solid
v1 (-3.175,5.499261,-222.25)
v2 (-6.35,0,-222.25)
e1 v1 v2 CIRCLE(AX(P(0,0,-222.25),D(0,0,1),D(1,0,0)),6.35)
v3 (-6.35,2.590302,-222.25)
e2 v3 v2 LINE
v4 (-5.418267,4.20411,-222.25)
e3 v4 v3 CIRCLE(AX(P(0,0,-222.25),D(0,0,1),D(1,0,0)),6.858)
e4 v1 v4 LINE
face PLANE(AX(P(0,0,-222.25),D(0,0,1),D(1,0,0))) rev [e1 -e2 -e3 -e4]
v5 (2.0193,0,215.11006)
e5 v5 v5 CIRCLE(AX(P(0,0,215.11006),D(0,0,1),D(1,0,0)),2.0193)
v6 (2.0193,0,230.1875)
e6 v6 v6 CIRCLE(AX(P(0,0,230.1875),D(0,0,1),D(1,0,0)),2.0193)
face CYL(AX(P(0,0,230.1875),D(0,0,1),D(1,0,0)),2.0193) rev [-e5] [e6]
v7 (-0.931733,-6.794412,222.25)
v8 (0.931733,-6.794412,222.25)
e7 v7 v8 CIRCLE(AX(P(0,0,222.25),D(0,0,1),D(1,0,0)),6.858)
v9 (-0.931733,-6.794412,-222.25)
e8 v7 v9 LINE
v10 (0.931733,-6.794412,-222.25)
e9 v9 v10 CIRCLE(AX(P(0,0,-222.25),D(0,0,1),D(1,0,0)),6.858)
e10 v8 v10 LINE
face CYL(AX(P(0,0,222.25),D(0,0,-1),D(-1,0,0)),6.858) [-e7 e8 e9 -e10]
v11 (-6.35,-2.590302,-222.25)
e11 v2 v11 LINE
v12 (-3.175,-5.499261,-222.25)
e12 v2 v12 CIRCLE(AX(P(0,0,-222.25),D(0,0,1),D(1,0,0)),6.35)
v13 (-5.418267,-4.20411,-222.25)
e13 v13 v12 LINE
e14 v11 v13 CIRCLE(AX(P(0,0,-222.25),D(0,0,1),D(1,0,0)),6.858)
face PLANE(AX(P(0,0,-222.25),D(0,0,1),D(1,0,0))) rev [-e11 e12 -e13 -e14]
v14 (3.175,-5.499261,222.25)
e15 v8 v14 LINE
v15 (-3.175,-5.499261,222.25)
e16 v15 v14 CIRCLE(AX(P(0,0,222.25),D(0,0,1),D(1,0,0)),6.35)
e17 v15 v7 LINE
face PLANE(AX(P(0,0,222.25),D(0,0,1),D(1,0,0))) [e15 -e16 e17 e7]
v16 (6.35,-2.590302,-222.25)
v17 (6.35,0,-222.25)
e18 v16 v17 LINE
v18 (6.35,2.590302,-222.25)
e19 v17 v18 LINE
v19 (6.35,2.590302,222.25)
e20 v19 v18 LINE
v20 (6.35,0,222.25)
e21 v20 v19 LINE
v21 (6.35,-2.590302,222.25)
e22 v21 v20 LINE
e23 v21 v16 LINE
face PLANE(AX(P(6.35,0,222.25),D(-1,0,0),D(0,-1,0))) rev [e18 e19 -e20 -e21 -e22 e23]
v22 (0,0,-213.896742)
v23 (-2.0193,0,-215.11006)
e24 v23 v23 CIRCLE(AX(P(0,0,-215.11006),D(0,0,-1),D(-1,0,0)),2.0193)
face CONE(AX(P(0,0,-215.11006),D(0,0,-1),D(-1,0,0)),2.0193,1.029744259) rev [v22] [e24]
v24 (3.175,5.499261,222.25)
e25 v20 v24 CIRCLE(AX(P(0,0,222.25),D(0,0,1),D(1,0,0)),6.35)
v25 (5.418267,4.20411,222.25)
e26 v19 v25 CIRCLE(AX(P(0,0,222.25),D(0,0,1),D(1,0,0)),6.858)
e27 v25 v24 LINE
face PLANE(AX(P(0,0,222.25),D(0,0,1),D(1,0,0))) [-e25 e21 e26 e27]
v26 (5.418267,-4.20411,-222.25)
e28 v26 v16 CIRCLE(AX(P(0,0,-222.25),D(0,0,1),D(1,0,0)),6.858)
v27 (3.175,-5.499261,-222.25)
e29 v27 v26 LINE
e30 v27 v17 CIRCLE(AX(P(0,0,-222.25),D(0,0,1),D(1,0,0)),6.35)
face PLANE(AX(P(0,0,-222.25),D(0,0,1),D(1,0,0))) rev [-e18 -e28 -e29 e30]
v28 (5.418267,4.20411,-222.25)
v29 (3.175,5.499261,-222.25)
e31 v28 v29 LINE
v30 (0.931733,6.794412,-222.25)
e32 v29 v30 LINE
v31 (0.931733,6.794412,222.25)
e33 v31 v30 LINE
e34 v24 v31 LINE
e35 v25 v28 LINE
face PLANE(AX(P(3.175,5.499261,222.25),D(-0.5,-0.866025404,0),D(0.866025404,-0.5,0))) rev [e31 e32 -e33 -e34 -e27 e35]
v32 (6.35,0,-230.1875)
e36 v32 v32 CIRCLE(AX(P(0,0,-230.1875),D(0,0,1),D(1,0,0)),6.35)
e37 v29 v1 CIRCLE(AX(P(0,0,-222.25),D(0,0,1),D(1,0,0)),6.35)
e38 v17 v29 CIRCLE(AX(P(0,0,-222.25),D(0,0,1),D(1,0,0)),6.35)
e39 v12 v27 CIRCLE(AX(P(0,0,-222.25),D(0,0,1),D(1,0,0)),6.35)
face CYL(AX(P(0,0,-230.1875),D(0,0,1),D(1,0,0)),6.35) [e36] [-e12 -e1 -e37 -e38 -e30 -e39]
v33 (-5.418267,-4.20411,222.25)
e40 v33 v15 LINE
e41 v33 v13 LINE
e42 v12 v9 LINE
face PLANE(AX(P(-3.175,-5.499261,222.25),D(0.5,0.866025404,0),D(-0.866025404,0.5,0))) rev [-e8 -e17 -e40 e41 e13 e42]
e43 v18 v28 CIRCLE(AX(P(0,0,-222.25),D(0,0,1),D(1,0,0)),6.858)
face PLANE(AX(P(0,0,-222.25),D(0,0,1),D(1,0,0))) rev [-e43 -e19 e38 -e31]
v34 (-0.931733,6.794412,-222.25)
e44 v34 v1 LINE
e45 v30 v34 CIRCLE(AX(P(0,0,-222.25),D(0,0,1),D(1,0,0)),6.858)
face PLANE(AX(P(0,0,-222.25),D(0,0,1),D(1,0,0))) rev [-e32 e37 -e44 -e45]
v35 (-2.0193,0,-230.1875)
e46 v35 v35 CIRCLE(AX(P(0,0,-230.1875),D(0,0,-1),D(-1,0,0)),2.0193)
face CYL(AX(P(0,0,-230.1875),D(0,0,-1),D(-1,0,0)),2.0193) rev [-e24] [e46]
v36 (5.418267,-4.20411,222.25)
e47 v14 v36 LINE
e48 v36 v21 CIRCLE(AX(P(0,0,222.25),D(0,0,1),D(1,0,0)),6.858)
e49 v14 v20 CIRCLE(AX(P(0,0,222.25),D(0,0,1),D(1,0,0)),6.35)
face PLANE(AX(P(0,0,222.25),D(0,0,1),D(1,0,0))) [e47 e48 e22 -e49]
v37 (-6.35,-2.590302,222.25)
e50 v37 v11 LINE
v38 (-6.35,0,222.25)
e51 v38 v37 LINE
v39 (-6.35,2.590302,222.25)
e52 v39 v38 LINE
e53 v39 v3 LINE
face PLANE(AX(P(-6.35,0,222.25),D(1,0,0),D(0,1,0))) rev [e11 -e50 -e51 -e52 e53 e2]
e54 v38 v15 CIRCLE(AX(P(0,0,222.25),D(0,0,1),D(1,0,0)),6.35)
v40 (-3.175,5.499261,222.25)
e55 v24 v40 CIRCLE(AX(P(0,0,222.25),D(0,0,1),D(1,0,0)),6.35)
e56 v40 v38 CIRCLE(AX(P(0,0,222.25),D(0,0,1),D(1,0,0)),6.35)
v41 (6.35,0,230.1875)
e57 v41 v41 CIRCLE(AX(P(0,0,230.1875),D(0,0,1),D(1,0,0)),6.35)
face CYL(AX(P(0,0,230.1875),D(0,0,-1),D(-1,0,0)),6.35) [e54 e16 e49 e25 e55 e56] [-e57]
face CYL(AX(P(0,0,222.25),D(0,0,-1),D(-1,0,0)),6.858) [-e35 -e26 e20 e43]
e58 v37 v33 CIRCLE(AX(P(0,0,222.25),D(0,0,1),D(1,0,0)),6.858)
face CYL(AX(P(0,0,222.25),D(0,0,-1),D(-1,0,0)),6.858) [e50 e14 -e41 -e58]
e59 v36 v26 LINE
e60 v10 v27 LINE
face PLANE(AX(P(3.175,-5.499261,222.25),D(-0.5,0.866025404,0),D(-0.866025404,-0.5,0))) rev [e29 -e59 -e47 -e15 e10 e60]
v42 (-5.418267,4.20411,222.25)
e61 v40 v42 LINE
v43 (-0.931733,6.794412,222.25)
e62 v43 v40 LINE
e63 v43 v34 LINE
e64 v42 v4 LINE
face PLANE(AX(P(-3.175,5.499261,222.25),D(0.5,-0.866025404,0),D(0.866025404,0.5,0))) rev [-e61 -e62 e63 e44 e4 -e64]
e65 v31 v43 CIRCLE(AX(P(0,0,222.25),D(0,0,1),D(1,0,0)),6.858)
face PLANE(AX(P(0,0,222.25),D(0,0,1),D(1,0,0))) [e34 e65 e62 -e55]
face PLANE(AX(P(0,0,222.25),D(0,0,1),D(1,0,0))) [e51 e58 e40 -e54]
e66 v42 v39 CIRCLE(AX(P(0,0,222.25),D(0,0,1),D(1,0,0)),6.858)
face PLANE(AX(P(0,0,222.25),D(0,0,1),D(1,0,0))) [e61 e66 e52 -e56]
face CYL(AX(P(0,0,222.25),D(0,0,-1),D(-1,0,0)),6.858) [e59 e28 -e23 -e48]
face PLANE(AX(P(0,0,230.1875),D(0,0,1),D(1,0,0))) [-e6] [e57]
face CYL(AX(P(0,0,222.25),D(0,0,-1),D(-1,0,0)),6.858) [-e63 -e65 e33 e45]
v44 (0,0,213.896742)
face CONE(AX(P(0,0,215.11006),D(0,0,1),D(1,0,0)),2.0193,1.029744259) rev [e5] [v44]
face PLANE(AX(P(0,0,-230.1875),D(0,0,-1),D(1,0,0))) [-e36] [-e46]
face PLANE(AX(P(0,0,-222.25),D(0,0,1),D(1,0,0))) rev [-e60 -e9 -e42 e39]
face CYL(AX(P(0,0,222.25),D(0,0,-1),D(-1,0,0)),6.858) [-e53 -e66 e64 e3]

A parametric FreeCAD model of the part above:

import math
import FreeCAD as App
import Part
import Sketcher
from FreeCAD import Vector
Q = App.Units.Quantity


def add_polygon(sketch, points):
    """Adds a closed chain of lines whose ends are joined by coincident constraints."""
    first, n = sketch.GeometryCount, len(points)
    for a, b in zip(points, points[1:] + points[:1]):
        sketch.addGeometry(Part.LineSegment(App.Vector(*a, 0), App.Vector(*b, 0)), False)
    for i in range(n):
        sketch.addConstraint(Sketcher.Constraint("Coincident", first + i, 2, first + (i + 1) % n, 1))

doc = App.newDocument("Part")
body = doc.addObject("PartDesign::Body", "Body")

sketch1 = body.newObject("Sketcher::SketchObject", "Sketch")
sketch1.AttachmentSupport = (doc.getObject("XY_Plane"), [""])
sketch1.MapMode = "FlatFace"
sketch1.addGeometry(Part.ArcOfCircle(Part.Circle(Vector(0, 0, 0), Vector(0, 0, 1), 6.858), math.radians(82.191607), math.radians(97.808393)), False)
sketch1.addGeometry(Part.LineSegment(Vector(-0.931733, 6.794412, 0), Vector(-5.418267, 4.20411, 0)), False)
sketch1.addGeometry(Part.ArcOfCircle(Part.Circle(Vector(0, 0, 0), Vector(0, 0, 1), 6.858), math.radians(142.191607), math.radians(157.808393)), False)
sketch1.addGeometry(Part.LineSegment(Vector(-6.35, 2.590302, 0), Vector(-6.35, -2.590302, 0)), False)
sketch1.addGeometry(Part.ArcOfCircle(Part.Circle(Vector(0, 0, 0), Vector(0, 0, 1), 6.858), math.radians(-157.808393), math.radians(-142.191607)), False)
sketch1.addGeometry(Part.LineSegment(Vector(-5.418267, -4.20411, 0), Vector(-0.931733, -6.794412, 0)), False)
sketch1.addGeometry(Part.ArcOfCircle(Part.Circle(Vector(0, 0, 0), Vector(0, 0, 1), 6.858), math.radians(-97.808393), math.radians(-82.191607)), False)
sketch1.addGeometry(Part.LineSegment(Vector(0.931733, -6.794412, 0), Vector(5.418267, -4.20411, 0)), False)
sketch1.addGeometry(Part.ArcOfCircle(Part.Circle(Vector(0, 0, 0), Vector(0, 0, 1), 6.858), math.radians(-37.808393), math.radians(-22.191607)), False)
sketch1.addGeometry(Part.LineSegment(Vector(6.35, -2.590302, 0), Vector(6.35, 2.590302, 0)), False)
sketch1.addGeometry(Part.ArcOfCircle(Part.Circle(Vector(0, 0, 0), Vector(0, 0, 1), 6.858), math.radians(22.191607), math.radians(37.808393)), False)
sketch1.addGeometry(Part.LineSegment(Vector(5.418267, 4.20411, 0), Vector(0.931733, 6.794412, 0)), False)
sketch1.addConstraint(Sketcher.Constraint("Coincident", 0, 2, 1, 1))
sketch1.addConstraint(Sketcher.Constraint("Coincident", 1, 2, 2, 1))
sketch1.addConstraint(Sketcher.Constraint("Coincident", 2, 2, 3, 1))
sketch1.addConstraint(Sketcher.Constraint("Coincident", 3, 2, 4, 1))
sketch1.addConstraint(Sketcher.Constraint("Coincident", 4, 2, 5, 1))
sketch1.addConstraint(Sketcher.Constraint("Coincident", 5, 2, 6, 1))
sketch1.addConstraint(Sketcher.Constraint("Coincident", 6, 2, 7, 1))
sketch1.addConstraint(Sketcher.Constraint("Coincident", 7, 2, 8, 1))
sketch1.addConstraint(Sketcher.Constraint("Coincident", 8, 2, 9, 1))
sketch1.addConstraint(Sketcher.Constraint("Coincident", 9, 2, 10, 1))
sketch1.addConstraint(Sketcher.Constraint("Coincident", 10, 2, 11, 1))
sketch1.addConstraint(Sketcher.Constraint("Coincident", 11, 2, 0, 1))
sketch1.addConstraint(Sketcher.Constraint("Vertical", 3))
sketch1.addConstraint(Sketcher.Constraint("Vertical", 9))
sketch1.addConstraint(Sketcher.Constraint("Coincident", 0, 3, -1, 1))
sketch1.addConstraint(Sketcher.Constraint("Coincident", 2, 3, -1, 1))
sketch1.addConstraint(Sketcher.Constraint("Coincident", 4, 3, -1, 1))
sketch1.addConstraint(Sketcher.Constraint("Coincident", 6, 3, -1, 1))
sketch1.addConstraint(Sketcher.Constraint("Coincident", 8, 3, -1, 1))
sketch1.addConstraint(Sketcher.Constraint("Coincident", 10, 3, -1, 1))
sketch1.addConstraint(Sketcher.Constraint("Equal", 0, 2))
sketch1.addConstraint(Sketcher.Constraint("Equal", 2, 4))
sketch1.addConstraint(Sketcher.Constraint("Equal", 4, 6))
sketch1.addConstraint(Sketcher.Constraint("Equal", 6, 8))
sketch1.addConstraint(Sketcher.Constraint("Equal", 8, 10))
sketch1.addConstraint(Sketcher.Constraint("Parallel", 1, 7))
sketch1.addConstraint(Sketcher.Constraint("Parallel", 5, 11))
sketch1.addConstraint(Sketcher.Constraint("Horizontal", 5, 2, 6, 2))
sketch1.addConstraint(Sketcher.Constraint("Horizontal", 4, 2, 7, 2))
sketch1.addConstraint(Sketcher.Constraint("Horizontal", 3, 2, 8, 2))
sketch1.addConstraint(Sketcher.Constraint("Horizontal", 1, 2, 10, 2))
sketch1.addConstraint(Sketcher.Constraint("Vertical", 1, 2, 4, 2))
sketch1.addConstraint(Sketcher.Constraint("Radius", 0, Q("0.27 in")))
sketch1.addConstraint(Sketcher.Constraint("Angle", 1, Q("-150 deg")))
sketch1.addConstraint(Sketcher.Constraint("DistanceX", 2, 2, -1, 1, Q("0.25 in")))
sketch1.addConstraint(Sketcher.Constraint("DistanceX", 4, 2, 6, 2, Q("0.25 in")))
pad1 = body.newObject("PartDesign::Pad", "Pad")
pad1.Profile = sketch1
pad1.Length = Q("17.5 in")
pad1.Midplane = True

sketch2 = body.newObject("Sketcher::SketchObject", "Sketch001")
sketch2.AttachmentSupport = (doc.getObject("XY_Plane"), [""])
sketch2.MapMode = "FlatFace"
sketch2.AttachmentOffset = App.Placement(Vector(0, 0, 8.75 * 25.4), App.Rotation())
sketch2.addGeometry(Part.Circle(Vector(0, 0, 0), Vector(0, 0, 1), 6.35), False)
sketch2.addConstraint(Sketcher.Constraint("Coincident", 0, 3, -1, 1))
sketch2.addConstraint(Sketcher.Constraint("Diameter", 0, Q("0.5 in")))
pad2 = body.newObject("PartDesign::Pad", "Pad001")
pad2.Profile = sketch2
pad2.Length = Q("0.3125 in")

sketch3 = body.newObject("Sketcher::SketchObject", "Sketch002")
sketch3.AttachmentSupport = (doc.getObject("YZ_Plane"), [""])
sketch3.MapMode = "FlatFace"
add_polygon(sketch3, [(0, 213.896742), (0, 230.1875), (-2.0193, 230.1875), (-2.0193, 215.11006)])
sketch3.addConstraint(Sketcher.Constraint("Vertical", 0))
sketch3.addConstraint(Sketcher.Constraint("Horizontal", 1))
sketch3.addConstraint(Sketcher.Constraint("Vertical", 2))
sketch3.addConstraint(Sketcher.Constraint("PointOnObject", 0, 2, -2))
sketch3.addConstraint(Sketcher.Constraint("Angle", 3, Q("-31 deg")))
sketch3.addConstraint(Sketcher.Constraint("DistanceX", 1, 2, 1, 1, Q("0.0795 in")))
sketch3.addConstraint(Sketcher.Constraint("DistanceY", 2, 2, 2, 1, Q("0.5936 in")))
sketch3.addConstraint(Sketcher.Constraint("DistanceY", -1, 1, 0, 2, Q("9.0625 in")))
groove = body.newObject("PartDesign::Groove", "Groove")
groove.Profile = sketch3
groove.ReferenceAxis = (sketch3, ["V_Axis"])
groove.Angle = 360
doc.recompute()

mirrored = body.newObject("PartDesign::Mirrored", "Mirrored")
mirrored.Originals = [pad2, groove]
mirrored.MirrorPlane = (doc.getObject("XY_Plane"), [""])
body.Tip = mirrored

doc.recompute()
